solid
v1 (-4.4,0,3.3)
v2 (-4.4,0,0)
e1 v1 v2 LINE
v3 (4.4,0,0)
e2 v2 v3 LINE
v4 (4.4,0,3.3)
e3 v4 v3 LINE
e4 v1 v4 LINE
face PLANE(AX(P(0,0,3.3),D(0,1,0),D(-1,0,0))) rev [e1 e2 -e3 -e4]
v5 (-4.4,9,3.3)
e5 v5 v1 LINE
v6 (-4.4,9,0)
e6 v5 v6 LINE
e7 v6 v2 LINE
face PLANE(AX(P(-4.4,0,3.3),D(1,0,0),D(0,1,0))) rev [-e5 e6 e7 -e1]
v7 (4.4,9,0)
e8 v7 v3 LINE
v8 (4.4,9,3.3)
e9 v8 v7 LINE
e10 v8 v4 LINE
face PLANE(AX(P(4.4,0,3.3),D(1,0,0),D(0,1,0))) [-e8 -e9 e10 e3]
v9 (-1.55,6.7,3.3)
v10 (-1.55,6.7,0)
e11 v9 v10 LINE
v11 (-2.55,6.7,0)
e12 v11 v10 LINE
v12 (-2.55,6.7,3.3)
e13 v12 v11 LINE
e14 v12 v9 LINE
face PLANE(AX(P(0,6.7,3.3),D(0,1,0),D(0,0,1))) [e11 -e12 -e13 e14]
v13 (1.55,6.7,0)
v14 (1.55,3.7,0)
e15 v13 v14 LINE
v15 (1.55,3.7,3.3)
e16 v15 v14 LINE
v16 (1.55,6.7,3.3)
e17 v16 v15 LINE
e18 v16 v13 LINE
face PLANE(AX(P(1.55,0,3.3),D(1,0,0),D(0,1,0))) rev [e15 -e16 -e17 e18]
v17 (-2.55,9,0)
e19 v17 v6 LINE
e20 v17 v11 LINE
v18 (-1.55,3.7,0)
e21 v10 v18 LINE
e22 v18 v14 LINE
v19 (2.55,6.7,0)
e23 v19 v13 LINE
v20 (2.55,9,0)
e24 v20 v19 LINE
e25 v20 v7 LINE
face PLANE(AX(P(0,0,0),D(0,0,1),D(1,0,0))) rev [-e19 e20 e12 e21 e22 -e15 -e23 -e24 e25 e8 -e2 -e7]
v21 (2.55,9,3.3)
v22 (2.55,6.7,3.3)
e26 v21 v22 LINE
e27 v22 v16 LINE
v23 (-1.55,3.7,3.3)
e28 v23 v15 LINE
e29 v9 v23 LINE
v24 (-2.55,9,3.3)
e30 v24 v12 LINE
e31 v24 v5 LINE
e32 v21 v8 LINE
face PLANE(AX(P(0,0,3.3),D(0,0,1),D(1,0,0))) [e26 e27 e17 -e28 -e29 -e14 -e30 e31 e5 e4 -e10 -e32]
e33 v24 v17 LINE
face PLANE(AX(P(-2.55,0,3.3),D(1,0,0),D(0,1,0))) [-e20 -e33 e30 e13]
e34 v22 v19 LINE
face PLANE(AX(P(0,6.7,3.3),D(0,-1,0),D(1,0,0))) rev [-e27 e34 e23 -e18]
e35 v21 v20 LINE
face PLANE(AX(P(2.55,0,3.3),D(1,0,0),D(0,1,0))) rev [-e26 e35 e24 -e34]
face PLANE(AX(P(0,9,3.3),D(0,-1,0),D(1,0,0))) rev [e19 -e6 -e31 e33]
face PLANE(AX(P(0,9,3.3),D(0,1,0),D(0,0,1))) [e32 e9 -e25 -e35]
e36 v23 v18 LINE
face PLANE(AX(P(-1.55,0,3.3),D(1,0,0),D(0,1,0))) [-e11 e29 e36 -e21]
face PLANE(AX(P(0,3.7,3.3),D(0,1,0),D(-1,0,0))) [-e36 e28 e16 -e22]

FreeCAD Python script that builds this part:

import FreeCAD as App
import Part
import Sketcher

V = App.Vector
Q = App.Units.Quantity


def add_polygon(sketch, points):
    """Adds a closed chain of lines whose ends are joined by coincident constraints."""
    first, n = sketch.GeometryCount, len(points)
    for a, b in zip(points, points[1:] + points[:1]):
        sketch.addGeometry(Part.LineSegment(App.Vector(*a, 0), App.Vector(*b, 0)), False)
    for i in range(n):
        sketch.addConstraint(Sketcher.Constraint("Coincident", first + i, 2, first + (i + 1) % n, 1))

doc = App.newDocument("Part")
params = doc.addObject("Spreadsheet::Sheet", "Params")
for row, (alias, value) in enumerate([
    ("sketch1_width", "1 mm"),
    ("sketch1_height", "9 mm"),
    ("sketch1_height2", "3 mm"),
    ("sketch1_width2", "8.8 mm"),
    ("sketch1_width3", "3.1 mm"),
    ("pad1_length", "3.3 mm"),
], start=1):
    params.set(f"A{row}", alias)
    params.set(f"B{row}", "=" + value)
    params.setAlias(f"B{row}", alias)

body = doc.addObject("PartDesign::Body", "Body")

sketch1 = doc.addObject("Sketcher::SketchObject", "Sketch")
body.addObject(sketch1)
sketch1.AttachmentSupport = (doc.XY_Plane, [""])
sketch1.MapMode = "FlatFace"
add_polygon(sketch1, [(-2.55, 6.7), (-2.55, 9), (-4.4, 9), (-4.4, 0), (4.4, 0), (4.4, 9), (2.55, 9), (2.55, 6.7), (1.55, 6.7), (1.55, 3.7), (-1.55, 3.7), (-1.55, 6.7)])
sketch1.addConstraint(Sketcher.Constraint("Vertical", 0))
sketch1.addConstraint(Sketcher.Constraint("Horizontal", 1))
sketch1.addConstraint(Sketcher.Constraint("Vertical", 2))
sketch1.addConstraint(Sketcher.Constraint("Horizontal", 3))
sketch1.addConstraint(Sketcher.Constraint("Vertical", 4))
sketch1.addConstraint(Sketcher.Constraint("Horizontal", 5))
sketch1.addConstraint(Sketcher.Constraint("Vertical", 6))
sketch1.addConstraint(Sketcher.Constraint("Horizontal", 7))
sketch1.addConstraint(Sketcher.Constraint("Vertical", 8))
sketch1.addConstraint(Sketcher.Constraint("Horizontal", 9))
sketch1.addConstraint(Sketcher.Constraint("Vertical", 10))
sketch1.addConstraint(Sketcher.Constraint("Horizontal", 11))
sketch1.addConstraint(Sketcher.Constraint("Symmetric", 2, 2, 3, 2, -1, 1))
sketch1.addConstraint(Sketcher.Constraint("Symmetric", 0, 2, 5, 2, -2))
sketch1.addConstraint(Sketcher.Constraint("Symmetric", 7, 2, 10, 2, -2))
sketch1.addConstraint(Sketcher.Constraint("DistanceX", 7, 2, 7, 1, Q("1 mm")))
sketch1.addConstraint(Sketcher.Constraint("DistanceY", 2, 2, 2, 1, Q("9 mm")))
sketch1.addConstraint(Sketcher.Constraint("DistanceY", 8, 2, 8, 1, Q("3 mm")))
sketch1.addConstraint(Sketcher.Constraint("DistanceX", 3, 1, 3, 2, Q("8.8 mm")))
sketch1.addConstraint(Sketcher.Constraint("DistanceX", 9, 2, 9, 1, Q("3.1 mm")))
sketch1.addConstraint(Sketcher.Constraint("DistanceY", 0, 1, 0, 2, Q("2.3 mm")))
sketch1.setExpression("Constraints[27]", "Params.sketch1_width")
sketch1.setExpression("Constraints[28]", "Params.sketch1_height")
sketch1.setExpression("Constraints[29]", "Params.sketch1_height2")
sketch1.setExpression("Constraints[30]", "Params.sketch1_width2")
sketch1.setExpression("Constraints[31]", "Params.sketch1_width3")
pad1 = doc.addObject("PartDesign::Pad", "Pad")
body.addObject(pad1)
pad1.Profile = sketch1
pad1.setExpression("Length", "Params.pad1_length")

doc.recompute()
